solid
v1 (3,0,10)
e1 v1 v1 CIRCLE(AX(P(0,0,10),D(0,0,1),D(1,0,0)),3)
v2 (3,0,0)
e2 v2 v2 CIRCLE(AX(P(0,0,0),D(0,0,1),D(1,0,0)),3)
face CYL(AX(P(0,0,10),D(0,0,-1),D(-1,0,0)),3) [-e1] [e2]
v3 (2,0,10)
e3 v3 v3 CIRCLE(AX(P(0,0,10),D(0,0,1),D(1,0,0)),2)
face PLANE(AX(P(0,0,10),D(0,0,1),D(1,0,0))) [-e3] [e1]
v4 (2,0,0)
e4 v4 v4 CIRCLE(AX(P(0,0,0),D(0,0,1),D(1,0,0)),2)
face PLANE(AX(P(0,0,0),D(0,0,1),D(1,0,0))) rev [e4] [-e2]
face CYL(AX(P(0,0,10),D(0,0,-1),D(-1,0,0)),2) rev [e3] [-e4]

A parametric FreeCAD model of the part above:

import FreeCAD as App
import Part
import Sketcher

V = App.Vector

doc = App.newDocument("Part")
params = doc.addObject("Spreadsheet::Sheet", "Params")
for row, (alias, value) in enumerate([
    ("sketch1_diameter", "6 mm"),
    ("sketch1_diameter2", "4 mm"),
    ("pad1_length", "10 mm"),
], start=1):
    params.set(f"A{row}", alias)
    params.set(f"B{row}", "=" + value)
    params.setAlias(f"B{row}", alias)

body = doc.addObject("PartDesign::Body", "Body")

# Sketch on XY plane
sketch1 = body.newObject("Sketcher::SketchObject", "Sketch")
sketch1.AttachmentSupport = (doc.getObject("XY_Plane"), [""])
sketch1.MapMode = "FlatFace"
sketch1.addGeometry(Part.Circle(V(0, 0, 0), V(0, 0, 1), 3), False)
sketch1.addGeometry(Part.Circle(V(0, 0, 0), V(0, 0, 1), 2), False)
sketch1.addConstraint(Sketcher.Constraint("Coincident", 0, 3, -1, 1))
sketch1.addConstraint(Sketcher.Constraint("Coincident", 1, 3, -1, 1))
sketch1.addConstraint(Sketcher.Constraint("Diameter", 0, 6.0))
sketch1.addConstraint(Sketcher.Constraint("Diameter", 1, 4.0))
sketch1.setExpression("Constraints[2]", "Params.sketch1_diameter")
sketch1.setExpression("Constraints[3]", "Params.sketch1_diameter2")
pad1 = body.newObject("PartDesign::Pad", "Pad")
pad1.Profile = sketch1
pad1.setExpression("Length", "Params.pad1_length")

doc.recompute()
